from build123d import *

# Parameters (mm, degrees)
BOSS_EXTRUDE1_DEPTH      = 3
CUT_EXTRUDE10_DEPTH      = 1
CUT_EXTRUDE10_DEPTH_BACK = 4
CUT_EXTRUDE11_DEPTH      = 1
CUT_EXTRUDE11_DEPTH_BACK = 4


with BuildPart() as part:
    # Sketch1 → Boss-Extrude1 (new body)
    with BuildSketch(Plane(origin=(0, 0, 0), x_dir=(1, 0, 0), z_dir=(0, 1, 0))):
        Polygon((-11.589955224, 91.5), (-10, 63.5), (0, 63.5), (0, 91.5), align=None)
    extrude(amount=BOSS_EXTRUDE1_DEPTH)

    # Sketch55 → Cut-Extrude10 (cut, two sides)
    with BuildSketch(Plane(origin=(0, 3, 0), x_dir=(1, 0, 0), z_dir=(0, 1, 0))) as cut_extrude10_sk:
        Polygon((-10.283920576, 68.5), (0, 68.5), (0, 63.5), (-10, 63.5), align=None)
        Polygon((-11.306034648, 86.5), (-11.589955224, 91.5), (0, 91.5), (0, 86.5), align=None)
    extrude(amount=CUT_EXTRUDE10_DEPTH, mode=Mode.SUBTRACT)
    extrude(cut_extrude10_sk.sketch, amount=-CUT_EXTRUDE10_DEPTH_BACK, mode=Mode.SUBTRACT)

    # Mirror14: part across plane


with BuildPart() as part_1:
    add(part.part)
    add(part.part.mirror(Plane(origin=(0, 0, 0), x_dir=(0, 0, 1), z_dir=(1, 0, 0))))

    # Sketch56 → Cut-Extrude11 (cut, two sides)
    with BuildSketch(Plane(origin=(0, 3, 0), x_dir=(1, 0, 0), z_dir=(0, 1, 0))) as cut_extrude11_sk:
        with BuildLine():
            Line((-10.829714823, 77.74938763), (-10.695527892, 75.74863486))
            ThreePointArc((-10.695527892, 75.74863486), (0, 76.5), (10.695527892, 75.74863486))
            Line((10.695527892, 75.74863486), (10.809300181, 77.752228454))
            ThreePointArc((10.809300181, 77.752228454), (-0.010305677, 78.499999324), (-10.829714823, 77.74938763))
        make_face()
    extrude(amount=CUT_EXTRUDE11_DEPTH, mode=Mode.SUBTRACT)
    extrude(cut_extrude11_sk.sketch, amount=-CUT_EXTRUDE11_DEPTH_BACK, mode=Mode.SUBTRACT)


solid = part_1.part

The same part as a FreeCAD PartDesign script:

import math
import FreeCAD as App
import Part
import Sketcher
from FreeCAD import Vector
Q = App.Units.Quantity

doc = App.newDocument("Part")
params = doc.addObject("Spreadsheet::Sheet", "Params")
for row, (alias, value) in enumerate([
    ("sketch1_width", "10 mm"),
    ("sketch1_height", "28 mm"),
    ("pad1_length", "3 mm"),
    ("sketch2_width", "10 mm"),
    ("sketch2_height", "5 mm"),
    ("sketch3_radius", "76.5 mm"),
    ("sketch3_radius2", "78.5 mm"),
], start=1):
    params.set(f"A{row}", alias)
    params.set(f"B{row}", "=" + value)
    params.setAlias(f"B{row}", alias)

body = doc.addObject("PartDesign::Body", "Body")

# Sketch on XZ plane
sketch1 = doc.addObject("Sketcher::SketchObject", "Sketch")
body.addObject(sketch1)
sketch1.AttachmentSupport = (doc.XZ_Plane, [""])
sketch1.MapMode = "FlatFace"
sketch1.addGeometry([
    Part.LineSegment(Vector(-11.589955, -91.5, 0), Vector(-10, -63.5, 0)),
    Part.LineSegment(Vector(-10, -63.5, 0), Vector(0, -63.5, 0)),
    Part.LineSegment(Vector(0, -63.5, 0), Vector(0, -91.5, 0)),
    Part.LineSegment(Vector(0, -91.5, 0), Vector(-11.589955, -91.5, 0)),
], False)
sketch1.addConstraint([
    Sketcher.Constraint("Coincident", 0, 2, 1, 1),
    Sketcher.Constraint("Coincident", 1, 2, 2, 1),
    Sketcher.Constraint("Coincident", 2, 2, 3, 1),
    Sketcher.Constraint("Coincident", 3, 2, 0, 1),
    Sketcher.Constraint("Horizontal", 1),
    Sketcher.Constraint("Vertical", 2),
    Sketcher.Constraint("Horizontal", 3),
    Sketcher.Constraint("PointOnObject", 1, 2, -2),
    Sketcher.Constraint("DistanceX", 1, 1, 1, 2, Q("10 mm")),
    Sketcher.Constraint("DistanceY", 2, 2, 2, 1, Q("28 mm")),
    Sketcher.Constraint("DistanceY", 0, 2, -1, 1, Q("63.5 mm")),
    Sketcher.Constraint("Angle", 0, Q("86.75 deg")),
])
sketch1.setExpression("Constraints[8]", "Params.sketch1_width")
sketch1.setExpression("Constraints[9]", "Params.sketch1_height")
pad1 = doc.addObject("PartDesign::Pad", "Pad")
body.addObject(pad1)
pad1.Profile = sketch1
pad1.setExpression("Length", "Params.pad1_length")
pad1.Reversed = True

# Sketch on XZ plane
sketch2 = doc.addObject("Sketcher::SketchObject", "Sketch001")
body.addObject(sketch2)
sketch2.AttachmentSupport = (doc.XZ_Plane, [""])
sketch2.MapMode = "FlatFace"
sketch2.AttachmentOffset = App.Placement(Vector(0, 0, -3), App.Rotation())
sketch2.addGeometry([
    Part.LineSegment(Vector(0, -68.5, 0), Vector(-10.283921, -68.5, 0)),  # 0
    Part.LineSegment(Vector(-10.283921, -68.5, 0), Vector(-10, -63.5, 0)),  # 1
    Part.LineSegment(Vector(-10, -63.5, 0), Vector(0, -63.5, 0)),  # 2
    Part.LineSegment(Vector(0, -63.5, 0), Vector(0, -68.5, 0)),  # 3
    Part.LineSegment(Vector(-11.589955, -91.5, 0), Vector(-11.306035, -86.5, 0)),  # 4
    Part.LineSegment(Vector(-11.306035, -86.5, 0), Vector(0, -86.5, 0)),  # 5
    Part.LineSegment(Vector(0, -86.5, 0), Vector(0, -91.5, 0)),  # 6
    Part.LineSegment(Vector(0, -91.5, 0), Vector(-11.589955, -91.5, 0)),  # 7
], False)
sketch2.addConstraint([
    Sketcher.Constraint("Coincident", 0, 2, 1, 1),
    Sketcher.Constraint("Coincident", 1, 2, 2, 1),
    Sketcher.Constraint("Coincident", 2, 2, 3, 1),
    Sketcher.Constraint("Coincident", 3, 2, 0, 1),
    Sketcher.Constraint("Coincident", 4, 2, 5, 1),
    Sketcher.Constraint("Coincident", 5, 2, 6, 1),
    Sketcher.Constraint("Coincident", 6, 2, 7, 1),
    Sketcher.Constraint("Coincident", 7, 2, 4, 1),
    Sketcher.Constraint("Horizontal", 0),
    Sketcher.Constraint("Horizontal", 2),
    Sketcher.Constraint("Vertical", 3),
    Sketcher.Constraint("Horizontal", 5),
    Sketcher.Constraint("Vertical", 6),
    Sketcher.Constraint("Horizontal", 7),
    Sketcher.Constraint("PointOnObject", 2, 2, -2),
    Sketcher.Constraint("PointOnObject", 5, 2, -2),
    Sketcher.Constraint("Parallel", 1, 4),
    Sketcher.Constraint("Equal", 3, 6),
    Sketcher.Constraint("DistanceX", 2, 1, 2, 2, Q("10 mm")),
    Sketcher.Constraint("DistanceY", 3, 2, 3, 1, Q("5 mm")),
    Sketcher.Constraint("DistanceY", 4, 2, 0, 2, Q("18 mm")),
    Sketcher.Constraint("DistanceY", 0, 2, -1, 1, Q("68.5 mm")),
    Sketcher.Constraint("Angle", 1, Q("86.75 deg")),
    Sketcher.Constraint("DistanceX", 5, 1, 5, 2, Q("11.306035 mm")),
])
sketch2.setExpression("Constraints[18]", "Params.sketch2_width")
sketch2.setExpression("Constraints[19]", "Params.sketch2_height")
pocket1 = doc.addObject("PartDesign::Pocket", "Pocket")
body.addObject(pocket1)
pocket1.Profile = sketch2
pocket1.Type = "ThroughAll"
pocket1.Midplane = True
body2 = doc.addObject("PartDesign::Body", "Body001")
body2.AllowCompound = True
doc.recompute()

body2.BaseFeature = body
doc.recompute()

mirroring = doc.addObject("Part::Mirroring", "Mirroring")
mirroring.Source = body
mirroring.Base = Vector(0, 0, 0)
mirroring.Normal = Vector(1, 0, 0)
body3 = doc.addObject("PartDesign::Body", "Body002")
body3.BaseFeature = mirroring
boolean = doc.addObject("PartDesign::Boolean", "Boolean")
body2.addObject(boolean)
boolean.Type = "Fuse"
boolean.addObjects([body3])
doc.recompute()

# Sketch on XZ plane
sketch3 = doc.addObject("Sketcher::SketchObject", "Sketch002")
body2.addObject(sketch3)
sketch3.AttachmentSupport = (doc.getObject("XZ_Plane001"), [""])
sketch3.MapMode = "FlatFace"
sketch3.AttachmentOffset = App.Placement(Vector(0, 0, -3), App.Rotation())
sketch3.addGeometry([
    Part.LineSegment(Vector(-10.829715, -77.749388, 0), Vector(-10.695528, -75.748635, 0)),
    Part.ArcOfCircle(Part.Circle(Vector(0, 0, 0), Vector(0, 0, 1), 76.5), math.radians(-98.036899), math.radians(-81.963101)),
    Part.LineSegment(Vector(10.695528, -75.748635, 0), Vector(10.8093, -77.752228, 0)),
    Part.ArcOfCircle(Part.Circle(Vector(0, 0, 0), Vector(0, 0, 1), 78.5), math.radians(-97.92971), math.radians(-82.085333)),
], False)
sketch3.addConstraint([
    Sketcher.Constraint("Coincident", 0, 2, 1, 1),
    Sketcher.Constraint("Coincident", 1, 2, 2, 1),
    Sketcher.Constraint("Coincident", 2, 2, 3, 2),
    Sketcher.Constraint("Coincident", 3, 1, 0, 1),
    Sketcher.Constraint("Coincident", 1, 3, -1, 1),
    Sketcher.Constraint("Coincident", 3, 3, -1, 1),
    Sketcher.Constraint("Horizontal", 0, 2, 1, 2),
    Sketcher.Constraint("Radius", 1, Q("76.5 mm")),
    Sketcher.Constraint("Radius", 3, Q("78.5 mm")),
    Sketcher.Constraint("Angle", 2, Q("-86.75 deg")),
    Sketcher.Constraint("DistanceX", -1, 1, 2, 2, Q("10.8093 mm")),
    Sketcher.Constraint("DistanceY", 2, 2, 3, 1, Q("0.002841 mm")),
])
sketch3.setExpression("Constraints[7]", "Params.sketch3_radius")
sketch3.setExpression("Constraints[8]", "Params.sketch3_radius2")
pocket2 = doc.addObject("PartDesign::Pocket", "Pocket001")
body2.addObject(pocket2)
pocket2.Profile = sketch3
pocket2.Type = "ThroughAll"
pocket2.Midplane = True
mirroring.Visibility = False

doc.recompute()
